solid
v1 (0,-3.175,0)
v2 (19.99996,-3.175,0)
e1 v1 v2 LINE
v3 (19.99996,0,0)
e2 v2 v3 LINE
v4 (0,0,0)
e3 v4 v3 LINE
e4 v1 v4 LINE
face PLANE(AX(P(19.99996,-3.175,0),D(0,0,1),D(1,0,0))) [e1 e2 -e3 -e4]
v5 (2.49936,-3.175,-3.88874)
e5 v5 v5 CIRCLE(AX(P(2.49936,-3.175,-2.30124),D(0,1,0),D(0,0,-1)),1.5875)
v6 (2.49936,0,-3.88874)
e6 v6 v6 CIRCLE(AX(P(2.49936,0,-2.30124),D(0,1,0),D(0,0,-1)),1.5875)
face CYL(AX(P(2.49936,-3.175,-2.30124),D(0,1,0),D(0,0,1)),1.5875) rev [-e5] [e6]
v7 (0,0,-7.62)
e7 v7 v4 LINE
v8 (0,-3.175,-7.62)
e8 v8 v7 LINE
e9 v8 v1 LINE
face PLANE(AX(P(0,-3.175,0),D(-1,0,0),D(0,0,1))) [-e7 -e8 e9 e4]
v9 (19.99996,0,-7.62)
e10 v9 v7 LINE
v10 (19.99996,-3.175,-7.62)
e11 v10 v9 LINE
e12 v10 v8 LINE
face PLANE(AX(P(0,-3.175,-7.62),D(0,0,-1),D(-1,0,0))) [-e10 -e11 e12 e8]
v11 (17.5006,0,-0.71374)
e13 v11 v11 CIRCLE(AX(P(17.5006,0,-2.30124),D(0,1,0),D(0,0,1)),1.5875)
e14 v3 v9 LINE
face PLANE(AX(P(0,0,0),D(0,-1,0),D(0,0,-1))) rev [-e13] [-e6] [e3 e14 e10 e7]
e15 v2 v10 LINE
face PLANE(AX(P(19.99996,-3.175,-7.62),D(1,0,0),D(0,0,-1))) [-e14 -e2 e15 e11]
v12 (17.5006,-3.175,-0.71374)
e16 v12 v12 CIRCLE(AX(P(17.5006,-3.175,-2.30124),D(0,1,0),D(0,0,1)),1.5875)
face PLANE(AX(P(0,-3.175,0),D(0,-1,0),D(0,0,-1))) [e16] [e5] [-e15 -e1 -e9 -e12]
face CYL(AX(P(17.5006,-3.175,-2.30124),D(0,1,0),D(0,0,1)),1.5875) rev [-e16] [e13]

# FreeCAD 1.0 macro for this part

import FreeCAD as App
import Part
import Sketcher

V = App.Vector
Q = App.Units.Quantity


def add_polygon(sketch, points):
    """Adds a closed chain of lines whose ends are joined by coincident constraints."""
    first, n = sketch.GeometryCount, len(points)
    for a, b in zip(points, points[1:] + points[:1]):
        sketch.addGeometry(Part.LineSegment(App.Vector(*a, 0), App.Vector(*b, 0)), False)
    for i in range(n):
        sketch.addConstraint(Sketcher.Constraint("Coincident", first + i, 2, first + (i + 1) % n, 1))

doc = App.newDocument("Part")
params = doc.addObject("Spreadsheet::Sheet", "Params")
for row, (alias, value) in enumerate([
    ("sketch1_diameter", "0.125 in"),
    ("sketch1_height", "0.3 in"),
    ("pad1_length", "0.125 in"),
], start=1):
    params.set(f"A{row}", alias)
    params.set(f"B{row}", "=" + value)
    params.setAlias(f"B{row}", alias)

body = doc.addObject("PartDesign::Body", "Body")

sketch1 = doc.addObject("Sketcher::SketchObject", "Sketch")
body.addObject(sketch1)
sketch1.AttachmentSupport = (doc.XZ_Plane, [""])
sketch1.MapMode = "FlatFace"
add_polygon(sketch1, [(0, -7.6), (0, 0), (20, 0), (20, -7.6)])
sketch1.addGeometry(Part.Circle(V(2.5, -2.3, 0), V(0, 0, 1), 1.6), False)
sketch1.addGeometry(Part.Circle(V(17.5, -2.3, 0), V(0, 0, 1), 1.6), False)
sketch1.addConstraint([
    Sketcher.Constraint("Vertical", 0),
    Sketcher.Constraint("Horizontal", 1),
    Sketcher.Constraint("Vertical", 2),
    Sketcher.Constraint("Horizontal", 3),
    Sketcher.Constraint("Coincident", 0, 2, -1, 1),
    Sketcher.Constraint("Equal", 4, 5),
    Sketcher.Constraint("Horizontal", 4, 3, 5, 3),
    Sketcher.Constraint("Diameter", 4, Q("0.125 in")),
    Sketcher.Constraint("DistanceY", 0, 1, 0, 2, Q("0.3 in")),
    Sketcher.Constraint("DistanceX", 1, 1, 1, 2, Q("0.7874 in")),
    Sketcher.Constraint("DistanceX", -1, 1, 5, 3, Q("0.689 in")),
    Sketcher.Constraint("DistanceX", 4, 3, 1, 2, Q("0.689 in")),
    Sketcher.Constraint("DistanceY", 4, 3, -1, 1, Q("0.0906 in")),
])
sketch1.setExpression("Constraints[11]", "Params.sketch1_diameter")
sketch1.setExpression("Constraints[12]", "Params.sketch1_height")
pad1 = doc.addObject("PartDesign::Pad", "Pad")
body.addObject(pad1)
pad1.Profile = sketch1
pad1.setExpression("Length", "Params.pad1_length")

doc.recompute()
